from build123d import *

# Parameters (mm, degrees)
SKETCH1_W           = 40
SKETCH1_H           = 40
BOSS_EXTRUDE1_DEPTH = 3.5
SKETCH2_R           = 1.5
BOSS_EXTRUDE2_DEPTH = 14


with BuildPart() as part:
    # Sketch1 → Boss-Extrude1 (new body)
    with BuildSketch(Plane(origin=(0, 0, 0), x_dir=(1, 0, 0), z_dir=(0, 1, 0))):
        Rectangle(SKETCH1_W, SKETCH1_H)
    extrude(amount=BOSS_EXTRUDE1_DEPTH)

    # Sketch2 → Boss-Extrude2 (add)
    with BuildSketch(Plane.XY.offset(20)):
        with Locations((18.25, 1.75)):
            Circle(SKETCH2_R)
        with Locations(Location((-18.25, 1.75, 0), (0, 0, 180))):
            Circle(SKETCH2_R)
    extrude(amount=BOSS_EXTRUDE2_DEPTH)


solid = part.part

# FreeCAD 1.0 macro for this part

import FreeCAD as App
import Part
import Sketcher
from FreeCAD import Vector
Q = App.Units.Quantity

doc = App.newDocument("Part")
body = doc.addObject("PartDesign::Body", "Body")

sketch1 = body.newObject("Sketcher::SketchObject", "Sketch")
sketch1.AttachmentSupport = (doc.getObject("XZ_Plane"), [""])
sketch1.MapMode = "FlatFace"
sketch1.addGeometry([
    Part.LineSegment(Vector(-20, -20, 0), Vector(-20, 20, 0)),
    Part.LineSegment(Vector(-20, 20, 0), Vector(20, 20, 0)),
    Part.LineSegment(Vector(20, 20, 0), Vector(20, -20, 0)),
    Part.LineSegment(Vector(20, -20, 0), Vector(-20, -20, 0)),
], False)
sketch1.addConstraint([
    Sketcher.Constraint("Coincident", 0, 2, 1, 1),
    Sketcher.Constraint("Coincident", 1, 2, 2, 1),
    Sketcher.Constraint("Coincident", 2, 2, 3, 1),
    Sketcher.Constraint("Coincident", 3, 2, 0, 1),
    Sketcher.Constraint("Vertical", 0),
    Sketcher.Constraint("Horizontal", 1),
    Sketcher.Constraint("Vertical", 2),
    Sketcher.Constraint("Horizontal", 3),
    Sketcher.Constraint("Symmetric", 0, 2, 2, 2, -1, 1),
    Sketcher.Constraint("Equal", 3, 0),
    Sketcher.Constraint("DistanceX", 1, 1, 1, 2, Q("40 mm")),
])
pad1 = body.newObject("PartDesign::Pad", "Pad")
pad1.Profile = sketch1
pad1.Length = 3.5
pad1.Reversed = True

sketch2 = body.newObject("Sketcher::SketchObject", "Sketch001")
sketch2.AttachmentSupport = (doc.getObject("XY_Plane"), [""])
sketch2.MapMode = "FlatFace"
sketch2.AttachmentOffset = App.Placement(Vector(0, 0, 20), App.Rotation())
sketch2.addGeometry([
    Part.Circle(Vector(18.2, 1.8, 0), Vector(0, 0, 1), 1.5),
    Part.Circle(Vector(-18.2, 1.8, 0), Vector(0, 0, 1), 1.5),
], False)
sketch2.addConstraint([
    Sketcher.Constraint("Equal", 0, 1),
    Sketcher.Constraint("Symmetric", 0, 3, 1, 3, -2),
    Sketcher.Constraint("Diameter", 0, Q("3 mm")),
    Sketcher.Constraint("DistanceX", 1, 3, 0, 3, Q("36.5 mm")),
    Sketcher.Constraint("DistanceY", -1, 1, 0, 3, Q("1.75 mm")),
])
pad2 = body.newObject("PartDesign::Pad", "Pad001")
pad2.Profile = sketch2
pad2.Length = 14

doc.recompute()
